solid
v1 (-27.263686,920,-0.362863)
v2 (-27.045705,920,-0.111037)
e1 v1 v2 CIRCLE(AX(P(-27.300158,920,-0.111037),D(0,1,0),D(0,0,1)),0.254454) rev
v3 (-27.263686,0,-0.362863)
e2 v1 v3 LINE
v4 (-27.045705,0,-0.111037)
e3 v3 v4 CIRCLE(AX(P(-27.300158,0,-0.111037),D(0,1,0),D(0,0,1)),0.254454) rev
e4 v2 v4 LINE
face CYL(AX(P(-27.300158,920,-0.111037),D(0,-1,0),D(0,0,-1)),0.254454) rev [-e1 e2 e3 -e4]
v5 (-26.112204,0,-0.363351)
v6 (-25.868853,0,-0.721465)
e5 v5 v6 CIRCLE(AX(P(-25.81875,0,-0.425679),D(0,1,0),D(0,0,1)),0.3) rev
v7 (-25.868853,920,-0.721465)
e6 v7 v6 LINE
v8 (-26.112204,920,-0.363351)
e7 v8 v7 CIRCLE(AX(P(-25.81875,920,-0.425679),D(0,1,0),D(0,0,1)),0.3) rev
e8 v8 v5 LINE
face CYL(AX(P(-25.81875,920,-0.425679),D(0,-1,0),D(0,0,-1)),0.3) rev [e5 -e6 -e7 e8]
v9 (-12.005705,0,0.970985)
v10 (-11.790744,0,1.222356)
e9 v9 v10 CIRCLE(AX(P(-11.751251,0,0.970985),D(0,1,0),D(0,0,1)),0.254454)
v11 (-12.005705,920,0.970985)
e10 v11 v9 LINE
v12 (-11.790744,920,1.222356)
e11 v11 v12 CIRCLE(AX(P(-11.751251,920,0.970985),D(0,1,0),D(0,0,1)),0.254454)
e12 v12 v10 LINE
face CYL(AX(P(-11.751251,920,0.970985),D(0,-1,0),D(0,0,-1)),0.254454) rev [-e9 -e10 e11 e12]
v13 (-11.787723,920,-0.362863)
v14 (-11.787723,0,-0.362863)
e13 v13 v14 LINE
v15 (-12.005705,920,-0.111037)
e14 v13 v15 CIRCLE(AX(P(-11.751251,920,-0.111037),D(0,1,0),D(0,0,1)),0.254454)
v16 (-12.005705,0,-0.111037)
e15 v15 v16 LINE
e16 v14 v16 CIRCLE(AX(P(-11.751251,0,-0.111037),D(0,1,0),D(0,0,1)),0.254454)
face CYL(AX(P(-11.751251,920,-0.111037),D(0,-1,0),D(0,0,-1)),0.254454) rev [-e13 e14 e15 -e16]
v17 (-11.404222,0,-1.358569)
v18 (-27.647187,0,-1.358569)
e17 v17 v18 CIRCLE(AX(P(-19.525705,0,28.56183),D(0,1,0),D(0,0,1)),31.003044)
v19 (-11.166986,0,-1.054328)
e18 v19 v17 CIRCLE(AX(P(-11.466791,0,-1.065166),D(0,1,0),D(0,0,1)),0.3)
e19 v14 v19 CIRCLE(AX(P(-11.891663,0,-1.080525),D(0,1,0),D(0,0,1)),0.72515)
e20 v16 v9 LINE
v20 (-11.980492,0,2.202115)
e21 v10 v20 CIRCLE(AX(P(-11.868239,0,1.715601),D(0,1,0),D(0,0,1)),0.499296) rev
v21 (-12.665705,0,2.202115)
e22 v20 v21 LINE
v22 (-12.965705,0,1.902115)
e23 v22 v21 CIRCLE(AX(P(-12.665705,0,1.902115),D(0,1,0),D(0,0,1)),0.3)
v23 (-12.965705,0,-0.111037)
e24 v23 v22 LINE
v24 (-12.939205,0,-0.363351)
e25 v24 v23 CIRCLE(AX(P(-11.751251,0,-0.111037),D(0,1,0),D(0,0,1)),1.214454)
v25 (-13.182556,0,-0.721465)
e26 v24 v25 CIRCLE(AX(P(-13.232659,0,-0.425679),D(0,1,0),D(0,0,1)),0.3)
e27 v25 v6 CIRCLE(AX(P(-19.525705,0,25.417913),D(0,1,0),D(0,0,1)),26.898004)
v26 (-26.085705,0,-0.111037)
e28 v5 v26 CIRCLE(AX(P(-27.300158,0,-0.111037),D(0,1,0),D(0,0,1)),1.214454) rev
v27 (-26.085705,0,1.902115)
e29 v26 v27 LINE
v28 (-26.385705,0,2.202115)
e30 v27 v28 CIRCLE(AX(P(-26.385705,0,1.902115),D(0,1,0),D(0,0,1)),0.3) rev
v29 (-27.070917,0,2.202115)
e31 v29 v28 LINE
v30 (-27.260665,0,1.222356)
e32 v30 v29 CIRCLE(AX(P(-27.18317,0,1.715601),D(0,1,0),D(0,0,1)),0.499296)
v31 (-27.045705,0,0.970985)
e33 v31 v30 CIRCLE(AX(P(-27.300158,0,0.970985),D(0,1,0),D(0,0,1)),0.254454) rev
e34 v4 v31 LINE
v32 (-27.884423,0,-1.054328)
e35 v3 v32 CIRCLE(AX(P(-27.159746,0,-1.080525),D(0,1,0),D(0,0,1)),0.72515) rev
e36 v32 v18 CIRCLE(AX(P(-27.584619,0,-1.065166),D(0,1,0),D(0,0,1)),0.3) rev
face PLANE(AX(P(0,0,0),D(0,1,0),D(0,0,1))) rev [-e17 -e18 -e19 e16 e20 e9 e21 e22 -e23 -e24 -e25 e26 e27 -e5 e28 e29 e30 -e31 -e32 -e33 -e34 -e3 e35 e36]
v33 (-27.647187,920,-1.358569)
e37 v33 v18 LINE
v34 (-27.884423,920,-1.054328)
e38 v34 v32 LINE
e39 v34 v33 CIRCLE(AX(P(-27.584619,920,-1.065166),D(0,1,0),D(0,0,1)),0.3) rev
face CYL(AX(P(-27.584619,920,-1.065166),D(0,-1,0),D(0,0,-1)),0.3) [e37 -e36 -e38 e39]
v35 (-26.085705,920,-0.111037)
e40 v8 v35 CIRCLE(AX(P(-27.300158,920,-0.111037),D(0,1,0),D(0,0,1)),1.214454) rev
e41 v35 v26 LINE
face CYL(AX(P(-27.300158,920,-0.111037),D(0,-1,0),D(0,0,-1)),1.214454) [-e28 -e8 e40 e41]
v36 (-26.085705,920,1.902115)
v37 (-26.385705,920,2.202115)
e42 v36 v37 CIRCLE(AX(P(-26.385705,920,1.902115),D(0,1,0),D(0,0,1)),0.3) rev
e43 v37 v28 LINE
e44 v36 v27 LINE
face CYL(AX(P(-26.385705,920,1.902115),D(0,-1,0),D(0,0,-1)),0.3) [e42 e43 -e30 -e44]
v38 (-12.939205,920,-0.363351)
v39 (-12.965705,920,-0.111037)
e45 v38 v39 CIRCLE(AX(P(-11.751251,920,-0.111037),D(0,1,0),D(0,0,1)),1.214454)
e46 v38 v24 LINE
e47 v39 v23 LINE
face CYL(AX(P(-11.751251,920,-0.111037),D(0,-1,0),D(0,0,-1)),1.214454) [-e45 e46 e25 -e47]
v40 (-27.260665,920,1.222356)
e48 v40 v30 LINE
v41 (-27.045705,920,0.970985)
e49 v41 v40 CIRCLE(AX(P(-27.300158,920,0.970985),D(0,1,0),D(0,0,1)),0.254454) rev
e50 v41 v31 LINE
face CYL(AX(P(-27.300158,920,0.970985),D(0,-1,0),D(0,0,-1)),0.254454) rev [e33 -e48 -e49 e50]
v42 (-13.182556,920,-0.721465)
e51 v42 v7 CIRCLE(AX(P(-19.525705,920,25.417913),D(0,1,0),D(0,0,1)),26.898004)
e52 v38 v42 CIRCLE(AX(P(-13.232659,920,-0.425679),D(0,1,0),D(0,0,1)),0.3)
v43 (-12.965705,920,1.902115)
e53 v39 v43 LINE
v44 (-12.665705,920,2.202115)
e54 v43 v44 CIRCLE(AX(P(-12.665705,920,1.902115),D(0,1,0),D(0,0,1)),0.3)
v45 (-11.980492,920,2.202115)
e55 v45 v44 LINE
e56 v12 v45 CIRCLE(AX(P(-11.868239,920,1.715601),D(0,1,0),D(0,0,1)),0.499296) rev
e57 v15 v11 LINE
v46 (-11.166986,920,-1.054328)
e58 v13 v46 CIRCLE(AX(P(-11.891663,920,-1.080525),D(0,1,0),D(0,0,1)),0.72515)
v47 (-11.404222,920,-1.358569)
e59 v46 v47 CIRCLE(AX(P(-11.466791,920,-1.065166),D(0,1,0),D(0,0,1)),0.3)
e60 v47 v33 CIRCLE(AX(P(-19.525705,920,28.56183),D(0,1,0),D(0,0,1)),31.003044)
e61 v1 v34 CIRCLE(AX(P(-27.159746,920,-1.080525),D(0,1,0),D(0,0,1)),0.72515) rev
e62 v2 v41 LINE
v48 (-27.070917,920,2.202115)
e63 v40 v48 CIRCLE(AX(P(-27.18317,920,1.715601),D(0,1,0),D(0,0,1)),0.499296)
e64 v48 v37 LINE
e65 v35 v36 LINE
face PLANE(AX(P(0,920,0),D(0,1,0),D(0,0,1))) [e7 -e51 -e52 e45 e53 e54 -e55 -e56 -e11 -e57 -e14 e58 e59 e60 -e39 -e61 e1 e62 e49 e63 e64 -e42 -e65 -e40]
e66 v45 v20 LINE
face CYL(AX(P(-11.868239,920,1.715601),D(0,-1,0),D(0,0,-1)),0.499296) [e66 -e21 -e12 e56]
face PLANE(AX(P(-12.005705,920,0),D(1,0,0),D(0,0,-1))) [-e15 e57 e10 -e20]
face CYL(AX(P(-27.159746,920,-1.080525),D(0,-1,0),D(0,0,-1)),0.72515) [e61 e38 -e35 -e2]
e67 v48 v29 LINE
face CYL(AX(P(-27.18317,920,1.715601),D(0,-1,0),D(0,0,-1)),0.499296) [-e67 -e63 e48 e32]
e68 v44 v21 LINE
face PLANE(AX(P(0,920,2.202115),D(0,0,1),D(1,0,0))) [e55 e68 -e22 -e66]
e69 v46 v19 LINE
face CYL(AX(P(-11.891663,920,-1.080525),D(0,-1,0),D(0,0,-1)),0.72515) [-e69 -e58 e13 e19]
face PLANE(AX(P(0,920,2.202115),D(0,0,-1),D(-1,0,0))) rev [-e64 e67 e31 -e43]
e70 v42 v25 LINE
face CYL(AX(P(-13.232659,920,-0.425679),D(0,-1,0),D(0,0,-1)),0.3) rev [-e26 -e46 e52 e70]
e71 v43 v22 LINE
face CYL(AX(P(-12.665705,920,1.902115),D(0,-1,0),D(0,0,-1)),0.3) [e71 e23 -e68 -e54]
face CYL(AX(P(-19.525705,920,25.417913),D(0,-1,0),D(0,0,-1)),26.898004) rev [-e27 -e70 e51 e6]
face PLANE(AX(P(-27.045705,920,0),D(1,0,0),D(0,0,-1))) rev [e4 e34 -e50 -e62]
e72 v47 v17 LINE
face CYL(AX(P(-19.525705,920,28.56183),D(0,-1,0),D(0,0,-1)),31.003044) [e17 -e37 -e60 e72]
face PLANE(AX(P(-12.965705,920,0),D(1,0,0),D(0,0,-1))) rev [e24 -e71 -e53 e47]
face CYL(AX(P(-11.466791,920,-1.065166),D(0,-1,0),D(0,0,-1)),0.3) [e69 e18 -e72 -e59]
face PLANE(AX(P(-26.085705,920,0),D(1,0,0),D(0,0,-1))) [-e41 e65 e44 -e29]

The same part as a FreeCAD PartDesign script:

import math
import FreeCAD as App
import Part
import Sketcher
from FreeCAD import Vector

doc = App.newDocument("Part")
body = doc.addObject("PartDesign::Body", "Body")

# Sketch on XZ plane
sketch1 = doc.addObject("Sketcher::SketchObject", "Sketch")
body.addObject(sketch1)
sketch1.AttachmentSupport = (doc.XZ_Plane, [""])
sketch1.MapMode = "FlatFace"
sketch1.addGeometry(Part.LineSegment(Vector(-27.05, -0.11, 0), Vector(-27.05, 0.97, 0)), False)
sketch1.addGeometry(Part.ArcOfCircle(Part.Circle(Vector(-27.3, 0.97, 0), Vector(0, 0, 1), 0.25), math.radians(0), math.radians(81)), False)
sketch1.addGeometry(Part.ArcOfCircle(Part.Circle(Vector(-27.18, 1.72, 0), Vector(0, 0, 1), 0.5), math.radians(77), math.radians(261)), False)
sketch1.addGeometry(Part.LineSegment(Vector(-27.07, 2.2, 0), Vector(-26.39, 2.2, 0)), False)
sketch1.addGeometry(Part.ArcOfCircle(Part.Circle(Vector(-26.39, 1.9, 0), Vector(0, 0, 1), 0.3), math.radians(0), math.radians(90)), False)
sketch1.addGeometry(Part.LineSegment(Vector(-26.09, 1.9, 0), Vector(-26.09, -0.11, 0)), False)
sketch1.addGeometry(Part.ArcOfCircle(Part.Circle(Vector(-27.3, -0.11, 0), Vector(0, 0, 1), 1.21), math.radians(-11.99), math.radians(0)), False)
sketch1.addGeometry(Part.ArcOfCircle(Part.Circle(Vector(-25.82, -0.43, 0), Vector(0, 0, 1), 0.3), math.radians(168), math.radians(260)), False)
sketch1.addGeometry(Part.ArcOfCircle(Part.Circle(Vector(-19.53, 25.42, 0), Vector(0, 0, 1), 26.9), math.radians(-104), math.radians(-76)), False)
sketch1.addGeometry(Part.ArcOfCircle(Part.Circle(Vector(-13.23, -0.43, 0), Vector(0, 0, 1), 0.3), math.radians(-80), math.radians(12)), False)
sketch1.addGeometry(Part.ArcOfCircle(Part.Circle(Vector(-11.75, -0.11, 0), Vector(0, 0, 1), 1.21), math.radians(180), math.radians(191.99)), False)
sketch1.addGeometry(Part.LineSegment(Vector(-12.97, -0.11, 0), Vector(-12.97, 1.9, 0)), False)
sketch1.addGeometry(Part.ArcOfCircle(Part.Circle(Vector(-12.67, 1.9, 0), Vector(0, 0, 1), 0.3), math.radians(90), math.radians(180)), False)
sketch1.addGeometry(Part.LineSegment(Vector(-12.67, 2.2, 0), Vector(-11.98, 2.2, 0)), False)
sketch1.addGeometry(Part.ArcOfCircle(Part.Circle(Vector(-11.87, 1.72, 0), Vector(0, 0, 1), 0.5), math.radians(-81), math.radians(103)), False)
sketch1.addGeometry(Part.ArcOfCircle(Part.Circle(Vector(-11.75, 0.97, 0), Vector(0, 0, 1), 0.25), math.radians(99), math.radians(180)), False)
sketch1.addGeometry(Part.LineSegment(Vector(-12.01, 0.97, 0), Vector(-12.01, -0.11, 0)), False)
sketch1.addGeometry(Part.ArcOfCircle(Part.Circle(Vector(-11.75, -0.11, 0), Vector(0, 0, 1), 0.25), math.radians(180), math.radians(262)), False)
sketch1.addGeometry(Part.ArcOfCircle(Part.Circle(Vector(-11.89, -1.08, 0), Vector(0, 0, 1), 0.73), math.radians(2), math.radians(82)), False)
sketch1.addGeometry(Part.ArcOfCircle(Part.Circle(Vector(-11.47, -1.07, 0), Vector(0, 0, 1), 0.3), math.radians(-78), math.radians(2)), False)
sketch1.addGeometry(Part.ArcOfCircle(Part.Circle(Vector(-19.53, 28.56, 0), Vector(0, 0, 1), 31), math.radians(-105), math.radians(-75)), False)
sketch1.addGeometry(Part.ArcOfCircle(Part.Circle(Vector(-27.58, -1.07, 0), Vector(0, 0, 1), 0.3), math.radians(178), math.radians(258)), False)
sketch1.addGeometry(Part.ArcOfCircle(Part.Circle(Vector(-27.16, -1.08, 0), Vector(0, 0, 1), 0.73), math.radians(98), math.radians(178)), False)
sketch1.addGeometry(Part.ArcOfCircle(Part.Circle(Vector(-27.3, -0.11, 0), Vector(0, 0, 1), 0.25), math.radians(-82), math.radians(0)), False)
sketch1.addConstraint(Sketcher.Constraint("Tangent", 0, 2, 1, 1))
sketch1.addConstraint(Sketcher.Constraint("Tangent", 1, 2, 2, 2))
sketch1.addConstraint(Sketcher.Constraint("Coincident", 2, 1, 3, 1))
sketch1.addConstraint(Sketcher.Constraint("Tangent", 3, 2, 4, 2))
sketch1.addConstraint(Sketcher.Constraint("Tangent", 4, 1, 5, 1))
sketch1.addConstraint(Sketcher.Constraint("Tangent", 5, 2, 6, 2))
sketch1.addConstraint(Sketcher.Constraint("Tangent", 6, 1, 7, 1))
sketch1.addConstraint(Sketcher.Constraint("Coincident", 7, 2, 8, 1))
sketch1.addConstraint(Sketcher.Constraint("Coincident", 8, 2, 9, 1))
sketch1.addConstraint(Sketcher.Constraint("Tangent", 9, 2, 10, 2))
sketch1.addConstraint(Sketcher.Constraint("Tangent", 10, 1, 11, 1))
sketch1.addConstraint(Sketcher.Constraint("Tangent", 11, 2, 12, 2))
sketch1.addConstraint(Sketcher.Constraint("Tangent", 12, 1, 13, 1))
sketch1.addConstraint(Sketcher.Constraint("Coincident", 13, 2, 14, 2))
sketch1.addConstraint(Sketcher.Constraint("Tangent", 14, 1, 15, 1))
sketch1.addConstraint(Sketcher.Constraint("Tangent", 15, 2, 16, 1))
sketch1.addConstraint(Sketcher.Constraint("Tangent", 16, 2, 17, 1))
sketch1.addConstraint(Sketcher.Constraint("Tangent", 17, 2, 18, 2))
sketch1.addConstraint(Sketcher.Constraint("Tangent", 18, 1, 19, 2))
sketch1.addConstraint(Sketcher.Constraint("Coincident", 19, 1, 20, 2))
sketch1.addConstraint(Sketcher.Constraint("Coincident", 20, 1, 21, 2))
sketch1.addConstraint(Sketcher.Constraint("Tangent", 21, 1, 22, 2))
sketch1.addConstraint(Sketcher.Constraint("Tangent", 22, 1, 23, 1))
sketch1.addConstraint(Sketcher.Constraint("Tangent", 23, 2, 0, 1))
sketch1.addConstraint(Sketcher.Constraint("Vertical", 0))
sketch1.addConstraint(Sketcher.Constraint("Horizontal", 3))
sketch1.addConstraint(Sketcher.Constraint("Vertical", 5))
sketch1.addConstraint(Sketcher.Constraint("Vertical", 11))
sketch1.addConstraint(Sketcher.Constraint("Horizontal", 13))
sketch1.addConstraint(Sketcher.Constraint("Vertical", 16))
sketch1.addConstraint(Sketcher.Constraint("Coincident", 17, 3, 10, 3))
sketch1.addConstraint(Sketcher.Constraint("Coincident", 23, 3, 6, 3))
sketch1.addConstraint(Sketcher.Constraint("Equal", 4, 7))
sketch1.addConstraint(Sketcher.Constraint("Equal", 7, 9))
sketch1.addConstraint(Sketcher.Constraint("Equal", 6, 10))
sketch1.addConstraint(Sketcher.Constraint("Equal", 9, 12))
sketch1.addConstraint(Sketcher.Constraint("Equal", 2, 14))
sketch1.addConstraint(Sketcher.Constraint("Equal", 1, 15))
sketch1.addConstraint(Sketcher.Constraint("Equal", 15, 17))
sketch1.addConstraint(Sketcher.Constraint("Equal", 12, 19))
sketch1.addConstraint(Sketcher.Constraint("Equal", 19, 21))
sketch1.addConstraint(Sketcher.Constraint("Equal", 18, 22))
sketch1.addConstraint(Sketcher.Constraint("Equal", 17, 23))
sketch1.addConstraint(Sketcher.Constraint("Horizontal", 7, 3, 9, 3))
sketch1.addConstraint(Sketcher.Constraint("Horizontal", 6, 3, 10, 3))
sketch1.addConstraint(Sketcher.Constraint("Horizontal", 4, 3, 12, 3))
sketch1.addConstraint(Sketcher.Constraint("Horizontal", 2, 3, 14, 3))
sketch1.addConstraint(Sketcher.Constraint("Horizontal", 1, 3, 15, 3))
sketch1.addConstraint(Sketcher.Constraint("Horizontal", 19, 3, 21, 3))
sketch1.addConstraint(Sketcher.Constraint("Horizontal", 18, 3, 22, 3))
sketch1.addConstraint(Sketcher.Constraint("Horizontal", 7, 2, 8, 2))
sketch1.addConstraint(Sketcher.Constraint("Horizontal", 19, 1, 20, 1))
sketch1.addConstraint(Sketcher.Constraint("Radius", 4, 0.3))
sketch1.addConstraint(Sketcher.Constraint("Radius", 18, 0.72515))
sketch1.addConstraint(Sketcher.Constraint("DistanceX", 4, 3, 8, 3, 6.86))
sketch1.addConstraint(Sketcher.Constraint("DistanceX", 0, 2, 4, 3, 0.66))
sketch1.addConstraint(Sketcher.Constraint("Radius", 1, 0.254454))
sketch1.addConstraint(Sketcher.Constraint("Radius", 2, 0.499296))
sketch1.addConstraint(Sketcher.Constraint("Radius", 8, 26.898004))
sketch1.addConstraint(Sketcher.Constraint("Radius", 20, 31.003044))
sketch1.addConstraint(Sketcher.Constraint("DistanceY", -1, 1, 2, 3, 1.715601))
sketch1.addConstraint(Sketcher.Constraint("DistanceX", 6, 3, 9, 3, 14.067499))
sketch1.addConstraint(Sketcher.Constraint("DistanceY", 19, 3, 8, 2, 0.343701))
sketch1.addConstraint(Sketcher.Constraint("DistanceX", 17, 2, 19, 1, 0.383501))
sketch1.addConstraint(Sketcher.Constraint("DistanceX", 3, 1, 3, 2, 0.685212))
sketch1.addConstraint(Sketcher.Constraint("DistanceY", 0, 1, 0, 2, 1.082022))
sketch1.addConstraint(Sketcher.Constraint("DistanceY", 5, 2, 5, 1, 2.013152))
sketch1.addConstraint(Sketcher.Constraint("DistanceX", 1, 3, -1, 1, 27.300158))
sketch1.addConstraint(Sketcher.Constraint("DistanceX", 19, 3, -1, 1, 11.466791))
sketch1.addConstraint(Sketcher.Constraint("DistanceY", -1, 1, 20, 3, 28.56183))
pad1 = doc.addObject("PartDesign::Pad", "Pad")
body.addObject(pad1)
pad1.Profile = sketch1
pad1.Length = 920
pad1.Reversed = True

doc.recompute()
